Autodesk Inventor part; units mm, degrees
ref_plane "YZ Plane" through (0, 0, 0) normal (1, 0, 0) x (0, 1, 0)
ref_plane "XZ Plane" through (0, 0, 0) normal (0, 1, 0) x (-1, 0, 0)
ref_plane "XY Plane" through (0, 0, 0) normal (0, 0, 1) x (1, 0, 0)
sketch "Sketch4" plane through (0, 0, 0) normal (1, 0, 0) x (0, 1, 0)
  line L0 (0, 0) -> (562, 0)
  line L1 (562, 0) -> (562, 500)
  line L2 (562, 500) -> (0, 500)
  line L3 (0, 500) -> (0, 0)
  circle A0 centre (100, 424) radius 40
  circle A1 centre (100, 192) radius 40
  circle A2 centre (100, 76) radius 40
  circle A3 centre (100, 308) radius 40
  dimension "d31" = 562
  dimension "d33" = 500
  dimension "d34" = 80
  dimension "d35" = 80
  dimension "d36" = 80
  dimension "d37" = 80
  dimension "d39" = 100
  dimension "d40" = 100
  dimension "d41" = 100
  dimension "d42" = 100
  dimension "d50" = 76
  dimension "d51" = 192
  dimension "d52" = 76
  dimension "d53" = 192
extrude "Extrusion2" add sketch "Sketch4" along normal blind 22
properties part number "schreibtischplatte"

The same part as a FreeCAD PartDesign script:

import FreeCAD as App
import Part
import Sketcher

V = App.Vector
Q = App.Units.Quantity

doc = App.newDocument("Part")
params = doc.addObject("Spreadsheet::Sheet", "Params")
for row, (alias, value) in enumerate([
    ("sketch1_diameter", "80 mm"),
    ("sketch1_width", "562 mm"),
    ("sketch1_height", "500 mm"),
    ("pad1_length", "22 mm"),
], start=1):
    params.set(f"A{row}", alias)
    params.set(f"B{row}", "=" + value)
    params.setAlias(f"B{row}", alias)

body = doc.addObject("PartDesign::Body", "Body")

sketch1 = body.newObject("Sketcher::SketchObject", "Sketch")
sketch1.AttachmentSupport = (doc.getObject("YZ_Plane"), [""])
sketch1.MapMode = "FlatFace"
sketch1.addGeometry(Part.LineSegment(V(0, 500, 0), V(0, 0, 0)), False)
sketch1.addGeometry(Part.LineSegment(V(0, 0, 0), V(562, 0, 0)), False)
sketch1.addGeometry(Part.LineSegment(V(562, 0, 0), V(562, 500, 0)), False)
sketch1.addGeometry(Part.LineSegment(V(562, 500, 0), V(0, 500, 0)), False)
sketch1.addGeometry(Part.Circle(V(100, 76, 0), V(0, 0, 1), 40), False)
sketch1.addGeometry(Part.Circle(V(100, 192, 0), V(0, 0, 1), 40), False)
sketch1.addGeometry(Part.Circle(V(100, 308, 0), V(0, 0, 1), 40), False)
sketch1.addGeometry(Part.Circle(V(100, 424, 0), V(0, 0, 1), 40), False)
sketch1.addConstraint(Sketcher.Constraint("Coincident", 0, 2, 1, 1))
sketch1.addConstraint(Sketcher.Constraint("Coincident", 1, 2, 2, 1))
sketch1.addConstraint(Sketcher.Constraint("Coincident", 2, 2, 3, 1))
sketch1.addConstraint(Sketcher.Constraint("Coincident", 3, 2, 0, 1))
sketch1.addConstraint(Sketcher.Constraint("Vertical", 0))
sketch1.addConstraint(Sketcher.Constraint("Horizontal", 1))
sketch1.addConstraint(Sketcher.Constraint("Vertical", 2))
sketch1.addConstraint(Sketcher.Constraint("Horizontal", 3))
sketch1.addConstraint(Sketcher.Constraint("Coincident", 0, 2, -1, 1))
sketch1.addConstraint(Sketcher.Constraint("Equal", 4, 5))
sketch1.addConstraint(Sketcher.Constraint("Equal", 5, 6))
sketch1.addConstraint(Sketcher.Constraint("Equal", 6, 7))
sketch1.addConstraint(Sketcher.Constraint("Vertical", 4, 3, 5, 3))
sketch1.addConstraint(Sketcher.Constraint("Vertical", 5, 3, 6, 3))
sketch1.addConstraint(Sketcher.Constraint("Vertical", 6, 3, 7, 3))
sketch1.addConstraint(Sketcher.Constraint("Diameter", 4, Q("80 mm")))
sketch1.addConstraint(Sketcher.Constraint("DistanceX", 1, 1, 1, 2, Q("562 mm")))
sketch1.addConstraint(Sketcher.Constraint("DistanceY", 0, 2, 0, 1, Q("500 mm")))
sketch1.addConstraint(Sketcher.Constraint("DistanceX", -1, 1, 4, 3, Q("100 mm")))
sketch1.addConstraint(Sketcher.Constraint("DistanceY", -1, 1, 4, 3, Q("76 mm")))
sketch1.addConstraint(Sketcher.Constraint("DistanceY", -1, 1, 5, 3, Q("192 mm")))
sketch1.addConstraint(Sketcher.Constraint("DistanceY", 7, 3, 2, 2, Q("76 mm")))
sketch1.addConstraint(Sketcher.Constraint("DistanceY", 6, 3, 2, 2, Q("192 mm")))
sketch1.setExpression("Constraints[15]", "Params.sketch1_diameter")
sketch1.setExpression("Constraints[16]", "Params.sketch1_width")
sketch1.setExpression("Constraints[17]", "Params.sketch1_height")
pad1 = body.newObject("PartDesign::Pad", "Pad")
pad1.Profile = sketch1
pad1.setExpression("Length", "Params.pad1_length")

doc.recompute()
